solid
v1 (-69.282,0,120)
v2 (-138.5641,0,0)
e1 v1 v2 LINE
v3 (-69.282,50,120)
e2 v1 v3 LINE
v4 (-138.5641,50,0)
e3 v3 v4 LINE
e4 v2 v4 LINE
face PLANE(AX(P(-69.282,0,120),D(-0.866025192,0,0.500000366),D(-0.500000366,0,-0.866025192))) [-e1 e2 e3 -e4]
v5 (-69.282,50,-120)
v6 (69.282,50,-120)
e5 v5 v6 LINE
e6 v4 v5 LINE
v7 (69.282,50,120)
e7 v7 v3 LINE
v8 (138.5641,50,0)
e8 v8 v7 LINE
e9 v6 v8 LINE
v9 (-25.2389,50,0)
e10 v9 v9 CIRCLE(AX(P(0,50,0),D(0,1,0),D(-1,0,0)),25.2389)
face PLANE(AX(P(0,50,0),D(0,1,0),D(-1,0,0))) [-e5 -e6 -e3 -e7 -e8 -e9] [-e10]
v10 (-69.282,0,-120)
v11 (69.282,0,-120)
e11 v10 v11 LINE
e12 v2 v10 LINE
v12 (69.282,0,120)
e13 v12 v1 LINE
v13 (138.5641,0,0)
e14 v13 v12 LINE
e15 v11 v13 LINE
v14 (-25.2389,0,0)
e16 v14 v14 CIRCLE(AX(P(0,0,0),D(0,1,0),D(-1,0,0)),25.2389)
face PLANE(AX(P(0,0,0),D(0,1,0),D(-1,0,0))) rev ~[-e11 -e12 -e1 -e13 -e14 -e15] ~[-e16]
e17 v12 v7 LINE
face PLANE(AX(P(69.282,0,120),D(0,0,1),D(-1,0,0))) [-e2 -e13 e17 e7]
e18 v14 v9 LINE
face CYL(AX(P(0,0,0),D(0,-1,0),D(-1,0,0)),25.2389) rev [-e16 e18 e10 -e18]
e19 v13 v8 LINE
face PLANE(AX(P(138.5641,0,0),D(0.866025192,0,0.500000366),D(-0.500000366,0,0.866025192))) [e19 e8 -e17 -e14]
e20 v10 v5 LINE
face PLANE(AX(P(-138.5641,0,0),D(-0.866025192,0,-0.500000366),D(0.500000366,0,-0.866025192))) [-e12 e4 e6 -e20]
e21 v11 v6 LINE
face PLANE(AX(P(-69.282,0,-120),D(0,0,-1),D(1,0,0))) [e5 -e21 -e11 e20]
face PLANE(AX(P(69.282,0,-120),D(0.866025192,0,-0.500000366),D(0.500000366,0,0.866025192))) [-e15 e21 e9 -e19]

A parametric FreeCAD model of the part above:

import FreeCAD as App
import Part
import Sketcher

V = App.Vector
Q = App.Units.Quantity

doc = App.newDocument("Part")
body = doc.addObject("PartDesign::Body", "Body")

# Sketch on XZ plane
sketch1 = doc.addObject("Sketcher::SketchObject", "Sketch")
body.addObject(sketch1)
sketch1.AttachmentSupport = (doc.XZ_Plane, [""])
sketch1.MapMode = "FlatFace"
sketch1.addGeometry([
    Part.LineSegment(V(69.282, 120, 0), V(138.5641, 0, 0)),  # 0
    Part.LineSegment(V(138.5641, 0, 0), V(69.282, -120, 0)),  # 1
    Part.LineSegment(V(69.282, -120, 0), V(-69.282, -120, 0)),  # 2
    Part.LineSegment(V(-69.282, -120, 0), V(-138.5641, 0, 0)),  # 3
    Part.LineSegment(V(-138.5641, 0, 0), V(-69.282, 120, 0)),  # 4
    Part.LineSegment(V(-69.282, 120, 0), V(69.282, 120, 0)),  # 5
    Part.Circle(V(0, 0, 0), V(0, 0, 1), 25.2389),  # 6
], False)
sketch1.addConstraint([
    Sketcher.Constraint("Coincident", 0, 2, 1, 1),
    Sketcher.Constraint("Coincident", 1, 2, 2, 1),
    Sketcher.Constraint("Coincident", 2, 2, 3, 1),
    Sketcher.Constraint("Coincident", 3, 2, 4, 1),
    Sketcher.Constraint("Coincident", 4, 2, 5, 1),
    Sketcher.Constraint("Coincident", 5, 2, 0, 1),
    Sketcher.Constraint("Horizontal", 2),
    Sketcher.Constraint("Horizontal", 5),
    Sketcher.Constraint("Coincident", 6, 3, -1, 1),
    Sketcher.Constraint("Symmetric", 0, 2, 3, 2, -1, 1),
    Sketcher.Constraint("Symmetric", 1, 2, 4, 2, -1, 1),
    Sketcher.Constraint("PointOnObject", 0, 2, -1),
    Sketcher.Constraint("Parallel", 0, 3),
    Sketcher.Constraint("Vertical", 2, 2, 4, 2),
    Sketcher.Constraint("Angle", 1, Q("-120 deg")),
    Sketcher.Constraint("DistanceY", 1, 2, -1, 1, Q("120 mm")),
    Sketcher.Constraint("Diameter", 6, Q("50.4778 mm")),
    Sketcher.Constraint("DistanceX", 2, 2, 2, 1, Q("138.564 mm")),
])
pad1 = doc.addObject("PartDesign::Pad", "Pad")
body.addObject(pad1)
pad1.Profile = sketch1
pad1.Length = 50
pad1.Reversed = True

doc.recompute()
